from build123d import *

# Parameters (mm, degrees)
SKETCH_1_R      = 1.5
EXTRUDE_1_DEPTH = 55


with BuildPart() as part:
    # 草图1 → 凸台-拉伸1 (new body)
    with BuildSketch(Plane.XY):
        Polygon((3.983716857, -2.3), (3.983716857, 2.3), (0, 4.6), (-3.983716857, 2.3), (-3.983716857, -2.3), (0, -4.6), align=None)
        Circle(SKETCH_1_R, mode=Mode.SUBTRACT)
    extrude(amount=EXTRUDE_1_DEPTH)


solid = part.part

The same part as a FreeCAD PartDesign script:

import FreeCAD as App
import Part
import Sketcher
from FreeCAD import Vector
Q = App.Units.Quantity


def add_polygon(sketch, points):
    """Adds a closed chain of lines whose ends are joined by coincident constraints."""
    first, n = sketch.GeometryCount, len(points)
    for a, b in zip(points, points[1:] + points[:1]):
        sketch.addGeometry(Part.LineSegment(App.Vector(*a, 0), App.Vector(*b, 0)), False)
    for i in range(n):
        sketch.addConstraint(Sketcher.Constraint("Coincident", first + i, 2, first + (i + 1) % n, 1))

doc = App.newDocument("Part")
params = doc.addObject("Spreadsheet::Sheet", "Params")
for row, (alias, value) in enumerate([
    ("sketch1_diameter", "3 mm"),
    ("sketch1_height", "4.6 mm"),
    ("sketch1_length", "4.6 mm"),
    ("pad1_length", "55 mm"),
], start=1):
    params.set(f"A{row}", alias)
    params.set(f"B{row}", "=" + value)
    params.setAlias(f"B{row}", alias)

body = doc.addObject("PartDesign::Body", "Body")

sketch1 = doc.addObject("Sketcher::SketchObject", "Sketch")
body.addObject(sketch1)
sketch1.AttachmentSupport = (doc.XY_Plane, [""])
sketch1.MapMode = "FlatFace"
add_polygon(sketch1, [(3.983717, -2.3), (3.983717, 2.3), (0, 4.6), (-3.983717, 2.3), (-3.983717, -2.3), (0, -4.6)])
sketch1.addGeometry(Part.Circle(Vector(0, 0, 0), Vector(0, 0, 1), 1.5), False)
sketch1.addConstraint([
    Sketcher.Constraint("Vertical", 0),
    Sketcher.Constraint("Vertical", 3),
    Sketcher.Constraint("Coincident", 6, 3, -1, 1),
    Sketcher.Constraint("Symmetric", 0, 2, 3, 2, -1, 1),
    Sketcher.Constraint("Symmetric", 1, 2, 4, 2, -1, 1),
    Sketcher.Constraint("PointOnObject", 1, 2, -2),
    Sketcher.Constraint("Parallel", 2, 5),
    Sketcher.Constraint("Horizontal", 0, 2, 2, 2),
    Sketcher.Constraint("Diameter", 6, Q("3 mm")),
    Sketcher.Constraint("Angle", 1, Q("150 deg")),
    Sketcher.Constraint("DistanceY", 0, 1, 0, 2, Q("4.6 mm")),
    Sketcher.Constraint("Distance", 1, Q("4.6 mm")),
])
sketch1.setExpression("Constraints[14]", "Params.sketch1_diameter")
sketch1.setExpression("Constraints[16]", "Params.sketch1_height")
sketch1.setExpression("Constraints[17]", "Params.sketch1_length")
pad1 = doc.addObject("PartDesign::Pad", "Pad")
body.addObject(pad1)
pad1.Profile = sketch1
pad1.setExpression("Length", "Params.pad1_length")

doc.recompute()
